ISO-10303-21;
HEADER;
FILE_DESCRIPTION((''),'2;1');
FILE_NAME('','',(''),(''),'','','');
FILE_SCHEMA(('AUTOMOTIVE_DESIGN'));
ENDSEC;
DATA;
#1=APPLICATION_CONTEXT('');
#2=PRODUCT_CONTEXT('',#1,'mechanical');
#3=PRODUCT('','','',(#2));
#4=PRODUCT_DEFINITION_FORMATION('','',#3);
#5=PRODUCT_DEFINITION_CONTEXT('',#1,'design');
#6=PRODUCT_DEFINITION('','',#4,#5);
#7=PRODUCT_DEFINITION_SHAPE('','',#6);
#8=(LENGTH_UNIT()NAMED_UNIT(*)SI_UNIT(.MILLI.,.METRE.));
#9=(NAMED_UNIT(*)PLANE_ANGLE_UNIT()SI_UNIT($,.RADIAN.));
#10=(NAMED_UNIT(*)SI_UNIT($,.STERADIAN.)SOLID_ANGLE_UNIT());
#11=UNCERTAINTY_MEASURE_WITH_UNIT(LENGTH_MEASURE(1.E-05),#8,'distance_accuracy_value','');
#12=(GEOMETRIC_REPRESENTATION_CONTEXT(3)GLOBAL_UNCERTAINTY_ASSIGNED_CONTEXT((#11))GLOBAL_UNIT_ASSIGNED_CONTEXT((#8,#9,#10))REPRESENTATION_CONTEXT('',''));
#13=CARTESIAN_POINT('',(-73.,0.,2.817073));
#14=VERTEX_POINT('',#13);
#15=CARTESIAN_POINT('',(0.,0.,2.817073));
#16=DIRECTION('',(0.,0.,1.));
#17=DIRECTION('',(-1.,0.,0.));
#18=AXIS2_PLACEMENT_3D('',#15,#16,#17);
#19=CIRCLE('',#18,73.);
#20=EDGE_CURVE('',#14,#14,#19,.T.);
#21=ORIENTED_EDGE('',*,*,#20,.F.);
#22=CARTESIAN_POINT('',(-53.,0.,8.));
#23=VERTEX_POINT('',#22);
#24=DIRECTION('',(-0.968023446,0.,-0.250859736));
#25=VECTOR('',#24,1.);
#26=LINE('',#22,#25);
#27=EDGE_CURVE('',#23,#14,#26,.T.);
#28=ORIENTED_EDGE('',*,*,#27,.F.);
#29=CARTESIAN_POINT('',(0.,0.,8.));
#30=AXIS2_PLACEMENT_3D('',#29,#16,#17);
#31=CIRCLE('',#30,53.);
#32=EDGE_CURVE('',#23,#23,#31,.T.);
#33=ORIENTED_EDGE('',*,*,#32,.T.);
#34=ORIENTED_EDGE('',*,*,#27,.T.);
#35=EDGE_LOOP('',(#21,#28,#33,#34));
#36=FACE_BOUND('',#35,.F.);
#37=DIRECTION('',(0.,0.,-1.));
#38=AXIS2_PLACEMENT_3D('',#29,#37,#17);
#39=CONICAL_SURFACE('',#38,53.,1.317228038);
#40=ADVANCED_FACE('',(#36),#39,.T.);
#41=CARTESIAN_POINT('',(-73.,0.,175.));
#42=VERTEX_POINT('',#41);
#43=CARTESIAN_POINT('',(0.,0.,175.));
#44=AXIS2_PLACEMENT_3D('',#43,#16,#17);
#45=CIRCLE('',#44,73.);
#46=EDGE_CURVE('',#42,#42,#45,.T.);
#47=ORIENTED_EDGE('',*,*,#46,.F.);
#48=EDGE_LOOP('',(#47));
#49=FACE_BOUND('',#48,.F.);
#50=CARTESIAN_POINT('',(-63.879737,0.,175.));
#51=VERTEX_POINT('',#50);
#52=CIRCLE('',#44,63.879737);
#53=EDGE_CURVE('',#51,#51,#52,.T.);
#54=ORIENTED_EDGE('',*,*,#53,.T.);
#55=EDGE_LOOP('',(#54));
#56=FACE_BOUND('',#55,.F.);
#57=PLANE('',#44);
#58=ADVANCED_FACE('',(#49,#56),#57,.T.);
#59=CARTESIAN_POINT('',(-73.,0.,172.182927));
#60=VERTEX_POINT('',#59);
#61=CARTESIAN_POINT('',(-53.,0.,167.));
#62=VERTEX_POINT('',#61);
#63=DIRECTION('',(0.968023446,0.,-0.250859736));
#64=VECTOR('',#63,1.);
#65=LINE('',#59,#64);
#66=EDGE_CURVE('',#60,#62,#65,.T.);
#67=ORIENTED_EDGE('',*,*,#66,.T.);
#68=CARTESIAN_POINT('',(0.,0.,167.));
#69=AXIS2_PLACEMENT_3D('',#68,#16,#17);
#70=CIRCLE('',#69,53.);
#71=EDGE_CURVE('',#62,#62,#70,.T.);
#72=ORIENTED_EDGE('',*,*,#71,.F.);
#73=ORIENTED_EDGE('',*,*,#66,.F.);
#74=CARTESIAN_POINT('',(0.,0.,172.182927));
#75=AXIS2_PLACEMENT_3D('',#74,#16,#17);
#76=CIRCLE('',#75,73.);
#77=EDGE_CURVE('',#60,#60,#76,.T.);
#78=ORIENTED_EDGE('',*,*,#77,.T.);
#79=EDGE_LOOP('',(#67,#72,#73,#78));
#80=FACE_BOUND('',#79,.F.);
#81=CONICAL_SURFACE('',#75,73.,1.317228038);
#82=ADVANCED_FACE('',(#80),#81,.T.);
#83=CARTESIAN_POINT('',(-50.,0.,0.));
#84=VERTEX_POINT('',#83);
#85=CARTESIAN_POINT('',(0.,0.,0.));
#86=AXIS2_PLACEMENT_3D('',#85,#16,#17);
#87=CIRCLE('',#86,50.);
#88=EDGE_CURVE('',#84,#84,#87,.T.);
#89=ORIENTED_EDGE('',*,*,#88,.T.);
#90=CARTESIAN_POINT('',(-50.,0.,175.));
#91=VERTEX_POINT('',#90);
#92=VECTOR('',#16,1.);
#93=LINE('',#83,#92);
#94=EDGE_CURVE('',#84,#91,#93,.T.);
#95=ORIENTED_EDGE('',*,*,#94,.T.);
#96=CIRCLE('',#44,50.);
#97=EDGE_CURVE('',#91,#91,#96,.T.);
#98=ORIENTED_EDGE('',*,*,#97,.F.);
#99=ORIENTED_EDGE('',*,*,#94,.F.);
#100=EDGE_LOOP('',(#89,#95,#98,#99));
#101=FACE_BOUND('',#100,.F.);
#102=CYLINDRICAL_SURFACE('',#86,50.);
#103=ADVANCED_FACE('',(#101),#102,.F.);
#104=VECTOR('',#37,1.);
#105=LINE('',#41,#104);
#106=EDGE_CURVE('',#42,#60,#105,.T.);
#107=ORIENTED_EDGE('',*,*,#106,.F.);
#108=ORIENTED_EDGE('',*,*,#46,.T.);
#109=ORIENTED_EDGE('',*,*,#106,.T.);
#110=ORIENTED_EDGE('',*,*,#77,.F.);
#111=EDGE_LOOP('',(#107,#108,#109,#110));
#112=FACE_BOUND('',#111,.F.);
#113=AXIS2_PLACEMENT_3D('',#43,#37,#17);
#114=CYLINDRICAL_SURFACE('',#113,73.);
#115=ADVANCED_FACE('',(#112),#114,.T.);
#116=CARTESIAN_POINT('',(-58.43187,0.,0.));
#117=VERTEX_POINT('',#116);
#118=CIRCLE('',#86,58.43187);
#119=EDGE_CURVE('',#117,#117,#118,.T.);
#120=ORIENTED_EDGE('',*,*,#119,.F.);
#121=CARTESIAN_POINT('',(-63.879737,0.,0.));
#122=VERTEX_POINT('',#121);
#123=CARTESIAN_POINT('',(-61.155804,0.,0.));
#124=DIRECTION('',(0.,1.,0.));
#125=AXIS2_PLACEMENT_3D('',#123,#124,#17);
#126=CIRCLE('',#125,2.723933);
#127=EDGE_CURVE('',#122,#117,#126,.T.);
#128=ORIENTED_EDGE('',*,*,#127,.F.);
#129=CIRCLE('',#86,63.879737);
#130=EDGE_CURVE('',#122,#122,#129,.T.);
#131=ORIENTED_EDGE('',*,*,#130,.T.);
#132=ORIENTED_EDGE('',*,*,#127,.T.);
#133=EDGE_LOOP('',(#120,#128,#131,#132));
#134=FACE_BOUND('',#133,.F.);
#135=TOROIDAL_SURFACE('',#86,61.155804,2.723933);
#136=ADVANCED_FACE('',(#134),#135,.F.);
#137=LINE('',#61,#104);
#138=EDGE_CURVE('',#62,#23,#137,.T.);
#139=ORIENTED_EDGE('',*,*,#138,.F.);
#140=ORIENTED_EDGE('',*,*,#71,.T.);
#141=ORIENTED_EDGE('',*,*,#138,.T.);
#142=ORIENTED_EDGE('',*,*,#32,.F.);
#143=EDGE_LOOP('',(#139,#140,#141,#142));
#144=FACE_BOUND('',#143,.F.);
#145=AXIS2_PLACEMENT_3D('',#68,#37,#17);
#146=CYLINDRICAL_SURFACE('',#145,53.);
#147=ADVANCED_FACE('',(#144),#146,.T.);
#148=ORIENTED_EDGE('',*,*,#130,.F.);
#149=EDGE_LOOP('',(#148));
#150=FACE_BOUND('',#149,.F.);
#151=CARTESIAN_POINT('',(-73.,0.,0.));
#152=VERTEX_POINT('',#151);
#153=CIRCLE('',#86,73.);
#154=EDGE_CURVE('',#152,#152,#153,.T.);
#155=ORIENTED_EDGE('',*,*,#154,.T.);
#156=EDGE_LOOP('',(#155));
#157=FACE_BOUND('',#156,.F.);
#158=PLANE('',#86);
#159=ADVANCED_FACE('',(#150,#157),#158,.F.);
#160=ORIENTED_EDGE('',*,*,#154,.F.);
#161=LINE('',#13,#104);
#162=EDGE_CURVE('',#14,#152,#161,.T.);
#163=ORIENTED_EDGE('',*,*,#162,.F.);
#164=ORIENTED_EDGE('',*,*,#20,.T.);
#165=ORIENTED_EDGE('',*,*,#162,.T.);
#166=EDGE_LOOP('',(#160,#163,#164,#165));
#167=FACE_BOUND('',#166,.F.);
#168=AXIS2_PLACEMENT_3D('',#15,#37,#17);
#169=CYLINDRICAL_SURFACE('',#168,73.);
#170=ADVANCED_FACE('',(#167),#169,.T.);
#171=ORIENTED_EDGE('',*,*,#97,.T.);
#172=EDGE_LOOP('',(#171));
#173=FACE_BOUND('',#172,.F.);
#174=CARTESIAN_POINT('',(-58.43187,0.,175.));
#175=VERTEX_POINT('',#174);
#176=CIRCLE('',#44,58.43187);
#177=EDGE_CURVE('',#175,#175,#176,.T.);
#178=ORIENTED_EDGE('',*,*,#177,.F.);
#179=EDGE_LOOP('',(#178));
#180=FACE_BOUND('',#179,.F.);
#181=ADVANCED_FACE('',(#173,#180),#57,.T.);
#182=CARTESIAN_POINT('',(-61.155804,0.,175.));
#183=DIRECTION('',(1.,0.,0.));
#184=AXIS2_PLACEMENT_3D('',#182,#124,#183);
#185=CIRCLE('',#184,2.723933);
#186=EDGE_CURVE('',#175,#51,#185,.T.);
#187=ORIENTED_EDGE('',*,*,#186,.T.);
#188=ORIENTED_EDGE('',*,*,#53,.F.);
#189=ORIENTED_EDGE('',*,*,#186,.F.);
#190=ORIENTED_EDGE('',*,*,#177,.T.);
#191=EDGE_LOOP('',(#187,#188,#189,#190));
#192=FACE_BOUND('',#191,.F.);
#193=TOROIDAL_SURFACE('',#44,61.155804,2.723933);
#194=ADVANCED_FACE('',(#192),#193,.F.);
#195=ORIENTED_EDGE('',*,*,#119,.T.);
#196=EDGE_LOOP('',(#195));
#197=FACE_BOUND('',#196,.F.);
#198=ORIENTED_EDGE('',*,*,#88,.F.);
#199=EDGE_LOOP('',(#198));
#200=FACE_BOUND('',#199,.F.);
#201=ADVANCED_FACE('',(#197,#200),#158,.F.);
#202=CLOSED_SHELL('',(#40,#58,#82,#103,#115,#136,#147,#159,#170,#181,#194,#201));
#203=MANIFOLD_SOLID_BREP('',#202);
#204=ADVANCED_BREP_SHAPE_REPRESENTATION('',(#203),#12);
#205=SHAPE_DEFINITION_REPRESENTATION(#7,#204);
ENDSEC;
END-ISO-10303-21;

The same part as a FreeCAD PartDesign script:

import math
import FreeCAD as App
import Part
import Sketcher
from FreeCAD import Vector

doc = App.newDocument("Part")
body = doc.addObject("PartDesign::Body", "Body")

sketch1 = body.newObject("Sketcher::SketchObject", "Sketch")
sketch1.AttachmentSupport = (doc.getObject("XZ_Plane"), [""])
sketch1.MapMode = "FlatFace"
sketch1.addGeometry([
    Part.LineSegment(Vector(-58.43187, 0, 0), Vector(-50, 0, 0)),
    Part.LineSegment(Vector(-50, 0, 0), Vector(-50, 175, 0)),
    Part.LineSegment(Vector(-50, 175, 0), Vector(-58.43187, 175, 0)),
    Part.ArcOfCircle(Part.Circle(Vector(-61.155804, 175, 0), Vector(0, 0, 1), 2.723933), math.radians(180), math.radians(360)),
    Part.LineSegment(Vector(-63.879737, 175, 0), Vector(-73, 175, 0)),
    Part.LineSegment(Vector(-73, 175, 0), Vector(-73, 172.182927, 0)),
    Part.LineSegment(Vector(-73, 172.182927, 0), Vector(-53, 167, 0)),
    Part.LineSegment(Vector(-53, 167, 0), Vector(-53, 8, 0)),
    Part.LineSegment(Vector(-53, 8, 0), Vector(-73, 2.817073, 0)),
    Part.LineSegment(Vector(-73, 2.817073, 0), Vector(-73, 0, 0)),
    Part.LineSegment(Vector(-73, 0, 0), Vector(-63.879737, 0, 0)),
    Part.ArcOfCircle(Part.Circle(Vector(-61.155804, 0, 0), Vector(0, 0, 1), 2.723933), math.radians(0), math.radians(180)),
], False)
sketch1.addConstraint([
    Sketcher.Constraint("Coincident", 0, 2, 1, 1),
    Sketcher.Constraint("Coincident", 1, 2, 2, 1),
    Sketcher.Constraint("Coincident", 2, 2, 3, 2),
    Sketcher.Constraint("Coincident", 3, 1, 4, 1),
    Sketcher.Constraint("Coincident", 4, 2, 5, 1),
    Sketcher.Constraint("Coincident", 5, 2, 6, 1),
    Sketcher.Constraint("Coincident", 6, 2, 7, 1),
    Sketcher.Constraint("Coincident", 7, 2, 8, 1),
    Sketcher.Constraint("Coincident", 8, 2, 9, 1),
    Sketcher.Constraint("Coincident", 9, 2, 10, 1),
    Sketcher.Constraint("Coincident", 10, 2, 11, 2),
    Sketcher.Constraint("Coincident", 11, 1, 0, 1),
    Sketcher.Constraint("Horizontal", 0),
    Sketcher.Constraint("Vertical", 1),
    Sketcher.Constraint("Horizontal", 2),
    Sketcher.Constraint("Horizontal", 4),
    Sketcher.Constraint("Vertical", 5),
    Sketcher.Constraint("Vertical", 7),
    Sketcher.Constraint("Vertical", 9),
    Sketcher.Constraint("Horizontal", 10),
    Sketcher.Constraint("Equal", 3, 11),
    Sketcher.Constraint("PointOnObject", 11, 3, -1),
    Sketcher.Constraint("PointOnObject", 0, 2, -1),
    Sketcher.Constraint("PointOnObject", 9, 2, -1),
    Sketcher.Constraint("Horizontal", 3, 3, 1, 2),
    Sketcher.Constraint("Horizontal", 2, 2, 3, 1),
    Sketcher.Constraint("Vertical", 3, 3, 11, 3),
    Sketcher.Constraint("Vertical", 5, 2, 8, 2),
    Sketcher.Constraint("Equal", 5, 9),
    Sketcher.Constraint("Equal", 6, 8),
    Sketcher.Constraint("DistanceY", 1, 1, 1, 2, 175.0),
    Sketcher.Constraint("DistanceY", 7, 2, 7, 1, 159.0),
    Sketcher.Constraint("DistanceX", 0, 2, -1, 1, 50.0),
    Sketcher.Constraint("DistanceX", 4, 2, -1, 1, 73.0),
    Sketcher.Constraint("DistanceX", 6, 2, -1, 1, 53.0),
    Sketcher.Constraint("Radius", 3, 2.723933),
    Sketcher.Constraint("DistanceX", 0, 1, 0, 2, 8.43187),
    Sketcher.Constraint("DistanceY", 5, 2, 5, 1, 2.817073),
])
revolution = body.newObject("PartDesign::Revolution", "Revolution")
revolution.Profile = sketch1
revolution.ReferenceAxis = (sketch1, ["V_Axis"])
revolution.Angle = 360

doc.recompute()
